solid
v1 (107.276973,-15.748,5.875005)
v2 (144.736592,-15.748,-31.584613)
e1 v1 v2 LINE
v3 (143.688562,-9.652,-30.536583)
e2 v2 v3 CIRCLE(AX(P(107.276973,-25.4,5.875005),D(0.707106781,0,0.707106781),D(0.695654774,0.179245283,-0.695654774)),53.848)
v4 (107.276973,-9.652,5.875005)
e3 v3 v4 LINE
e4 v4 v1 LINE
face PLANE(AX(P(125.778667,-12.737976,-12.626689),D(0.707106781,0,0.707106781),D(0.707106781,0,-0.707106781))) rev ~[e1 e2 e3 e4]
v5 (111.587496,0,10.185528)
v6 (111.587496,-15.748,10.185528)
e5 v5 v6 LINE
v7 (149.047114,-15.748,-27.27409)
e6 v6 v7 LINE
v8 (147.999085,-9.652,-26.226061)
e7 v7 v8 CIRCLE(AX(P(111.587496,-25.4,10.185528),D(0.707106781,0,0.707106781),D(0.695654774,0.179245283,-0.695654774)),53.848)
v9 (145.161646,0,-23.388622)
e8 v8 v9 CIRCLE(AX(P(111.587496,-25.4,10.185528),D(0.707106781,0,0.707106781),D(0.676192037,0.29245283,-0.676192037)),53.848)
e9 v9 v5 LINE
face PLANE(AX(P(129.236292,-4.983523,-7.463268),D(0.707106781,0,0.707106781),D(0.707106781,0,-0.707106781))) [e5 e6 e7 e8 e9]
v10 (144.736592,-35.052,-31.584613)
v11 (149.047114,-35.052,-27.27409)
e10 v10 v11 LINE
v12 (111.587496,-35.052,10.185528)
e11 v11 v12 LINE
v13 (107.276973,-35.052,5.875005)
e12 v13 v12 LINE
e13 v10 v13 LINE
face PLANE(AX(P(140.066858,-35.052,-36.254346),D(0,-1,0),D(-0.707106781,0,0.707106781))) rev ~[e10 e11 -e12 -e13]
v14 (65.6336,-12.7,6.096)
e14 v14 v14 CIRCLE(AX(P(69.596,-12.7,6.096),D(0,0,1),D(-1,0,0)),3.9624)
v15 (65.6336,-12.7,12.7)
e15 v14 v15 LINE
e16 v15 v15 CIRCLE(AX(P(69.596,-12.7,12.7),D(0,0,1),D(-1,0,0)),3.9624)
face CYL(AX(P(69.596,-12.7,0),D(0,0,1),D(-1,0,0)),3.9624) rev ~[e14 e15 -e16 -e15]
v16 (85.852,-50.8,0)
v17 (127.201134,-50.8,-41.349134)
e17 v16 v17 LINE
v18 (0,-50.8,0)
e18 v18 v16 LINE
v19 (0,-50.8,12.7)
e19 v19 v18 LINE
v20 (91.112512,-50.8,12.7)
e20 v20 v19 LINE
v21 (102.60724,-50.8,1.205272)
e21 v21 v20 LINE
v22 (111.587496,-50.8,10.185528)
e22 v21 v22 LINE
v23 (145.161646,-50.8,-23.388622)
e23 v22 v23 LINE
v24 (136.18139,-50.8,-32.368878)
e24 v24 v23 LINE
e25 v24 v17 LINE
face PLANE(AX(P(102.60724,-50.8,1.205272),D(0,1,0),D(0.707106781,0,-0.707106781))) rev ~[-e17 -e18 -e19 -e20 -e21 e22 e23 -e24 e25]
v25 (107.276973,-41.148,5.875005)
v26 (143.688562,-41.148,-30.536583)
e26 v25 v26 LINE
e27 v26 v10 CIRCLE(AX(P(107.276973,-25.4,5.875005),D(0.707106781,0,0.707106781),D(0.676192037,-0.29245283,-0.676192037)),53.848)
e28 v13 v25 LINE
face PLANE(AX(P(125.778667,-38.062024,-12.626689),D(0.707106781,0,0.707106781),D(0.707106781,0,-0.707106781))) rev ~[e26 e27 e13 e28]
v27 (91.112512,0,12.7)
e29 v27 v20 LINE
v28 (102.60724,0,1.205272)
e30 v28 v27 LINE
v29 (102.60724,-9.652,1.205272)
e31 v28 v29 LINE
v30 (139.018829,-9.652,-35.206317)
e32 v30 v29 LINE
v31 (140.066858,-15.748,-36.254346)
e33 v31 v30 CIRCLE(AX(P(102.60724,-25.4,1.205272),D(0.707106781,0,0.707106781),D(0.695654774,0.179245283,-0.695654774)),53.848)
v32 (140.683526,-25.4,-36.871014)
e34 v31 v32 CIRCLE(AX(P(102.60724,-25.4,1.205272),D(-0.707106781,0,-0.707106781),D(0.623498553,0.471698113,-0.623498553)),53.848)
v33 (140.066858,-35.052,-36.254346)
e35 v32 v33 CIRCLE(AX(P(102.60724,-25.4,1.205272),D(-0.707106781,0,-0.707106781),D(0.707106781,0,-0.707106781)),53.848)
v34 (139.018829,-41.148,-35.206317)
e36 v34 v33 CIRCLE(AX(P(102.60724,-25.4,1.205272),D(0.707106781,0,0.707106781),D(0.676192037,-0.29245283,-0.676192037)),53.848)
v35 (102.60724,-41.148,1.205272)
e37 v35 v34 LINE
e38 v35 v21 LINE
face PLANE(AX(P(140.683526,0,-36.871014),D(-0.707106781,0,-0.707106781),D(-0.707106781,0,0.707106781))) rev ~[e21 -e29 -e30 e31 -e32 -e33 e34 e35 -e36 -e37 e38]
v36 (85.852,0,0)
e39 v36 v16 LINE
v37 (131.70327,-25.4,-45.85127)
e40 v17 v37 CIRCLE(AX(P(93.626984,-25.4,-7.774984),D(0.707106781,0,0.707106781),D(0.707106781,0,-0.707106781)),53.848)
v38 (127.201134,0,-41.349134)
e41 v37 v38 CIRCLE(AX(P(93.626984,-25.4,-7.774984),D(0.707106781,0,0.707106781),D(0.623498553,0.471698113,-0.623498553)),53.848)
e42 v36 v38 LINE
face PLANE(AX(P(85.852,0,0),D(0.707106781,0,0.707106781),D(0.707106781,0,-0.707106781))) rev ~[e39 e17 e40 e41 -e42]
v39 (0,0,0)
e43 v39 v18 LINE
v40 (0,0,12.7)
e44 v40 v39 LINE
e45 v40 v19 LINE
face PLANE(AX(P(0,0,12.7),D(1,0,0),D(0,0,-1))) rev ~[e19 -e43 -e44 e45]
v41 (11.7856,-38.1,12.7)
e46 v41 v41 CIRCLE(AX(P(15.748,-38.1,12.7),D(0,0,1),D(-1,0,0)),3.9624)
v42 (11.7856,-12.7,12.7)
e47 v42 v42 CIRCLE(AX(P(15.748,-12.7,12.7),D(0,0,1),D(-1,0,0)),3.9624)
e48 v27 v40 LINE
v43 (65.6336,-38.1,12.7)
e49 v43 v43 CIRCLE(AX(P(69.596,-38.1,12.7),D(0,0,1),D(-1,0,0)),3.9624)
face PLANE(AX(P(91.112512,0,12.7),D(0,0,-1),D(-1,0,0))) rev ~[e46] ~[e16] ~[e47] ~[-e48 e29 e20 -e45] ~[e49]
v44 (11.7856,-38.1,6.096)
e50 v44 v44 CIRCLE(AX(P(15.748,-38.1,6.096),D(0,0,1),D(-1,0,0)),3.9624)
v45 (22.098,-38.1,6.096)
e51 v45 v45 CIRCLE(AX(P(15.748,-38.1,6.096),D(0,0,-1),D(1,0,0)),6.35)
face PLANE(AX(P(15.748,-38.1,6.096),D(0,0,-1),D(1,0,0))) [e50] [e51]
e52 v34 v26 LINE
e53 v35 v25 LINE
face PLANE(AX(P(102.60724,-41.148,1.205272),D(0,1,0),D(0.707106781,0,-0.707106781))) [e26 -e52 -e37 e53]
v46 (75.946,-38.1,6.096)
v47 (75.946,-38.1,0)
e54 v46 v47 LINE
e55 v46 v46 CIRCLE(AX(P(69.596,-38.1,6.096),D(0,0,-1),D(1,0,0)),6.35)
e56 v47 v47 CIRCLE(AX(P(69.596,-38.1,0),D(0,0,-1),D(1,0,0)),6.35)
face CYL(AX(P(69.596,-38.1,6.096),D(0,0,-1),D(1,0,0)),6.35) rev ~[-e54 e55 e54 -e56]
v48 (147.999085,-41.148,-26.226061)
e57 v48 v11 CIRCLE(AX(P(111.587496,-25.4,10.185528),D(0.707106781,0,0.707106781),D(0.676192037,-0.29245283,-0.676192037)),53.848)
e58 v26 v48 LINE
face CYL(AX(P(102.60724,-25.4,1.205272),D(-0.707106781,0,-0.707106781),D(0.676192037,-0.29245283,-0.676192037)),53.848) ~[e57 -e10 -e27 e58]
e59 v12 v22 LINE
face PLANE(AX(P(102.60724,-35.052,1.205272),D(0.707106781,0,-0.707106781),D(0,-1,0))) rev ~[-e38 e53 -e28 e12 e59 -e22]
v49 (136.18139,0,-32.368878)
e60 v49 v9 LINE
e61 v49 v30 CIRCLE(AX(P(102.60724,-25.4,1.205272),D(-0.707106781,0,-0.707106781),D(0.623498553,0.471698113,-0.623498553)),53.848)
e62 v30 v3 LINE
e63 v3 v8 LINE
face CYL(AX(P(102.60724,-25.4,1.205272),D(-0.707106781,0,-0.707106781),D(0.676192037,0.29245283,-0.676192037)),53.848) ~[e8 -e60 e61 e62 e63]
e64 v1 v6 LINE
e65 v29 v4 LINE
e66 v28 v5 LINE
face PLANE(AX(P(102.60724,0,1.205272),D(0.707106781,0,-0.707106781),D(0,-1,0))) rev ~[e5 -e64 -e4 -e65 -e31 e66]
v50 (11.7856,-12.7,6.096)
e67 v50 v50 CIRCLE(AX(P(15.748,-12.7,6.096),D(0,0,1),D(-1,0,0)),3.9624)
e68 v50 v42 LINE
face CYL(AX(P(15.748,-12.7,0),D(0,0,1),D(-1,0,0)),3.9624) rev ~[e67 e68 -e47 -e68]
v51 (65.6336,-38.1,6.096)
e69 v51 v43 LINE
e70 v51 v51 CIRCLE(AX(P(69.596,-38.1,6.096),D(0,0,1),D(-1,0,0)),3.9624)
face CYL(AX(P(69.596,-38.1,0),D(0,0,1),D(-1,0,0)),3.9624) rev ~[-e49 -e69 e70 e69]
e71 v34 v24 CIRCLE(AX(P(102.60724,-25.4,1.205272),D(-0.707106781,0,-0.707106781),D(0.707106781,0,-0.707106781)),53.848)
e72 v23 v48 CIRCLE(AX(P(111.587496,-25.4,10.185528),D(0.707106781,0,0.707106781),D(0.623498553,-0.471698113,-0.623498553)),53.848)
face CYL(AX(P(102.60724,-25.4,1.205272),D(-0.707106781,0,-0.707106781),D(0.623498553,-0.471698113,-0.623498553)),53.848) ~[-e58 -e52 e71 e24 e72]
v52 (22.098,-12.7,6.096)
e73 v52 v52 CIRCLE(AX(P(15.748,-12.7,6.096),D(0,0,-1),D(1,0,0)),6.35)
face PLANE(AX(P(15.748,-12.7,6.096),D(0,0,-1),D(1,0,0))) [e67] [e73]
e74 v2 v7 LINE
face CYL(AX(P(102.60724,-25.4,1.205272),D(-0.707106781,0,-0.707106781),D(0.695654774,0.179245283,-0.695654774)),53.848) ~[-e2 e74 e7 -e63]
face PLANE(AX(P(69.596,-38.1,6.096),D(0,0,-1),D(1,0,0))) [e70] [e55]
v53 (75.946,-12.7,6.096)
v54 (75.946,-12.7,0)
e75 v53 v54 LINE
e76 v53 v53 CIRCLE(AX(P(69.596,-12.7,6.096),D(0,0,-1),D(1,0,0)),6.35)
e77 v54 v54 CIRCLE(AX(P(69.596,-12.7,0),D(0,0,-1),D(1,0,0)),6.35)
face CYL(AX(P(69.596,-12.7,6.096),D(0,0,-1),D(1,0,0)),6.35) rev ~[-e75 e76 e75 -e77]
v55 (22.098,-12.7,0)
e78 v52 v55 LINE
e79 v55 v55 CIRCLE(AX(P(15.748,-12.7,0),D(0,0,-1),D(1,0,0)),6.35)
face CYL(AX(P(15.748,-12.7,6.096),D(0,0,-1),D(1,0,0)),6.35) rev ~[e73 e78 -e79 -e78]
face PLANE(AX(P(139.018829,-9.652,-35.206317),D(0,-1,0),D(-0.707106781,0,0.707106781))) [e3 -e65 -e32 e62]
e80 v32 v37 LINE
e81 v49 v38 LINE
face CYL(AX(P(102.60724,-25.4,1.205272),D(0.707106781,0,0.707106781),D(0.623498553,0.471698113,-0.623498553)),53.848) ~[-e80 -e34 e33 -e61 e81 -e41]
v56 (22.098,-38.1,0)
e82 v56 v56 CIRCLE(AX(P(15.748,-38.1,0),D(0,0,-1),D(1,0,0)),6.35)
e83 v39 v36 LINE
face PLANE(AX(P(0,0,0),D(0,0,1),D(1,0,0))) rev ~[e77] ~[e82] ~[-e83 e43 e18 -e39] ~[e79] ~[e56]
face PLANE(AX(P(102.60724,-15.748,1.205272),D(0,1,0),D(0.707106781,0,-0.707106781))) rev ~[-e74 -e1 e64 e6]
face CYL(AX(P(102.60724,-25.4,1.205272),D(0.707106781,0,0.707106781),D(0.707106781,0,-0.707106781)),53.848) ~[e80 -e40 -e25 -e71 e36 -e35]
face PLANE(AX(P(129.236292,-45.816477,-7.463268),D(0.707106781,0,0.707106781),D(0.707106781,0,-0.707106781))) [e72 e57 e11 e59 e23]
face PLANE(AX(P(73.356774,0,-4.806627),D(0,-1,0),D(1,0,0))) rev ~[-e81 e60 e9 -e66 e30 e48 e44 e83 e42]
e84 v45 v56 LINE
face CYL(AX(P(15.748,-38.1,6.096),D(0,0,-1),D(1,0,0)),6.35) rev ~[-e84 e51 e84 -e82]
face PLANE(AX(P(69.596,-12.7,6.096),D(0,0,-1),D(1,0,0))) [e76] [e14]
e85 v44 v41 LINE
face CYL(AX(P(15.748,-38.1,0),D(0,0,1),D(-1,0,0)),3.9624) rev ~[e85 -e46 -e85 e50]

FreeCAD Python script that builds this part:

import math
import FreeCAD as App
import Part
import Sketcher
Q = App.Units.Quantity


def add_polygon(sketch, points):
    """Adds a closed chain of lines whose ends are joined by coincident constraints."""
    first, n = sketch.GeometryCount, len(points)
    for a, b in zip(points, points[1:] + points[:1]):
        sketch.addGeometry(Part.LineSegment(App.Vector(*a, 0), App.Vector(*b, 0)), False)
    for i in range(n):
        sketch.addConstraint(Sketcher.Constraint("Coincident", first + i, 2, first + (i + 1) % n, 1))

doc = App.newDocument("Part")
body = doc.addObject("PartDesign::Body", "Body")

# Sketch on XZ plane
sketch1 = body.newObject("Sketcher::SketchObject", "Sketch")
sketch1.AttachmentSupport = (doc.getObject("XZ_Plane"), [""])
sketch1.MapMode = "FlatFace"
add_polygon(sketch1, [(0, 13), (0, 0), (86, 0), (132, -46), (141, -37), (91, 13)])  # lines 0-5
sketch1.addConstraint(Sketcher.Constraint("Vertical", 0))
sketch1.addConstraint(Sketcher.Constraint("Horizontal", 1))
sketch1.addConstraint(Sketcher.Constraint("Horizontal", 5))
sketch1.addConstraint(Sketcher.Constraint("Coincident", 0, 2, -1, 1))
sketch1.addConstraint(Sketcher.Constraint("Perpendicular", 2, 3))
sketch1.addConstraint(Sketcher.Constraint("Perpendicular", 3, 4))
sketch1.addConstraint(Sketcher.Constraint("DistanceY", 0, 2, 0, 1, Q("0.5 in")))
sketch1.addConstraint(Sketcher.Constraint("Angle", 2, Q("-45 deg")))
sketch1.addConstraint(Sketcher.Constraint("Distance", 3, Q("0.5 in")))
sketch1.addConstraint(Sketcher.Constraint("DistanceX", 1, 1, 1, 2, Q("3.38 in")))
sketch1.addConstraint(Sketcher.Constraint("Distance", 4, Q("2.76 in")))
pad1 = body.newObject("PartDesign::Pad", "Pad")
pad1.Profile = sketch1
pad1.Length = Q("2 in")

# Sketch on XY plane
sketch2 = body.newObject("Sketcher::SketchObject", "Sketch001")
sketch2.AttachmentSupport = (doc.getObject("XY_Plane"), [""])
sketch2.MapMode = "FlatFace"
sketch2.addGeometry(Part.Circle(App.Vector(15.7, -38.1, 0), App.Vector(0, 0, 1), 4), False)
sketch2.addGeometry(Part.Circle(App.Vector(69.6, -38.1, 0), App.Vector(0, 0, 1), 4), False)
sketch2.addGeometry(Part.Circle(App.Vector(69.6, -12.7, 0), App.Vector(0, 0, 1), 4), False)
sketch2.addGeometry(Part.Circle(App.Vector(15.7, -12.7, 0), App.Vector(0, 0, 1), 4), False)
sketch2.addConstraint(Sketcher.Constraint("Equal", 0, 1))
sketch2.addConstraint(Sketcher.Constraint("Equal", 1, 2))
sketch2.addConstraint(Sketcher.Constraint("Equal", 2, 3))
sketch2.addConstraint(Sketcher.Constraint("Horizontal", 0, 3, 1, 3))
sketch2.addConstraint(Sketcher.Constraint("Horizontal", 2, 3, 3, 3))
sketch2.addConstraint(Sketcher.Constraint("Vertical", 1, 3, 2, 3))
sketch2.addConstraint(Sketcher.Constraint("Vertical", 0, 3, 3, 3))
sketch2.addConstraint(Sketcher.Constraint("Diameter", 0, Q("0.312 in")))
sketch2.addConstraint(Sketcher.Constraint("DistanceY", 1, 3, 2, 3, Q("1 in")))
sketch2.addConstraint(Sketcher.Constraint("DistanceY", 0, 3, -1, 1, Q("1.5 in")))
sketch2.addConstraint(Sketcher.Constraint("DistanceX", -1, 1, 0, 3, Q("0.62 in")))
sketch2.addConstraint(Sketcher.Constraint("DistanceX", -1, 1, 1, 3, Q("2.74 in")))
doc.recompute()
hole = body.newObject("PartDesign::Hole", "Hole")
hole.Profile = sketch2
hole.ThreadType = "None"
hole.Diameter = Q("0.312 in")
hole.DepthType = "Dimension"
hole.Depth = Q("1.4 in")
hole.DrillPoint = "Angled"
hole.DrillPointAngle = 118
hole.HoleCutType = "Counterbore"
hole.HoleCutDiameter = Q("0.5 in")
hole.HoleCutDepth = Q("0.24 in")
hole.Reversed = True

# Sketch on an angled plane
sketch3 = body.newObject("Sketcher::SketchObject", "Sketch002")
sketch3.Placement = App.Placement(App.Vector(51.906256, 0, 51.906256), App.Rotation(App.Vector(0.707106781, 0, -0.707106781), App.Vector(0, 0.999999999, 0), App.Vector(0.707106781, 0, 0.707106781), "ZXY"))
sketch3.addGeometry(Part.ArcOfCircle(Part.Circle(App.Vector(72, -25, 0), App.Vector(0, 0, 1), 54), math.radians(-28), math.radians(0)), False)
sketch3.addGeometry(Part.LineSegment(App.Vector(119, -51, 0), App.Vector(126, -51, 0)), False)
sketch3.addGeometry(Part.LineSegment(App.Vector(126, -51, 0), App.Vector(126, -25, 0)), False)
sketch3.addGeometry(Part.ArcOfCircle(Part.Circle(App.Vector(72, -25, 0), App.Vector(0, 0, 1), 54), math.radians(0), math.radians(28)), False)
sketch3.addGeometry(Part.LineSegment(App.Vector(126, -25, 0), App.Vector(126, 0, 0)), False)
sketch3.addGeometry(Part.LineSegment(App.Vector(126, 0, 0), App.Vector(119, 0, 0)), False)
sketch3.addConstraint(Sketcher.Constraint("Coincident", 0, 1, 1, 1))
sketch3.addConstraint(Sketcher.Constraint("Coincident", 1, 2, 2, 1))
sketch3.addConstraint(Sketcher.Constraint("Tangent", 2, 2, 0, 2))
sketch3.addConstraint(Sketcher.Constraint("Tangent", 3, 1, 4, 1))
sketch3.addConstraint(Sketcher.Constraint("Coincident", 4, 2, 5, 1))
sketch3.addConstraint(Sketcher.Constraint("Coincident", 5, 2, 3, 2))
sketch3.addConstraint(Sketcher.Constraint("Horizontal", 1))
sketch3.addConstraint(Sketcher.Constraint("Vertical", 2))
sketch3.addConstraint(Sketcher.Constraint("Vertical", 4))
sketch3.addConstraint(Sketcher.Constraint("Horizontal", 5))
sketch3.addConstraint(Sketcher.Constraint("Coincident", 3, 3, 0, 3))
sketch3.addConstraint(Sketcher.Constraint("Equal", 0, 3))
sketch3.addConstraint(Sketcher.Constraint("PointOnObject", 4, 2, -1))
sketch3.addConstraint(Sketcher.Constraint("Vertical", 0, 1, 5, 2))
sketch3.addConstraint(Sketcher.Constraint("DistanceY", 2, 1, 2, 2, Q("1 in")))
sketch3.addConstraint(Sketcher.Constraint("Radius", 0, Q("2.12 in")))
sketch3.addConstraint(Sketcher.Constraint("DistanceX", -1, 1, 0, 3, Q("71.702019 mm")))
pocket1 = body.newObject("PartDesign::Pocket", "Pocket")
pocket1.Profile = sketch3
pocket1.Type = "ThroughAll"

# Sketch on an angled plane
sketch4 = body.newObject("Sketcher::SketchObject", "Sketch003")
sketch4.Placement = App.Placement(App.Vector(51.906256, 0, 51.906256), App.Rotation(App.Vector(0.707106781, 0, -0.707106781), App.Vector(0, 0.999999999, 0), App.Vector(0.707106781, 0, 0.707106781), "ZXY"))
sketch4.addGeometry(Part.LineSegment(App.Vector(72, -51, 0), App.Vector(119, -51, 0)), False)
sketch4.addGeometry(Part.ArcOfCircle(Part.Circle(App.Vector(72, -25, 0), App.Vector(0, 0, 1), 54), math.radians(-28.14), math.radians(-17)), False)
sketch4.addGeometry(Part.ArcOfCircle(Part.Circle(App.Vector(72, -25, 0), App.Vector(0, 0, 1), 54), math.radians(-17), math.radians(-10.33)), False)
sketch4.addGeometry(Part.LineSegment(App.Vector(125, -35, 0), App.Vector(72, -35, 0)), False)
sketch4.addGeometry(Part.LineSegment(App.Vector(72, -35, 0), App.Vector(72, -51, 0)), False)
sketch4.addGeometry(Part.LineSegment(App.Vector(119, 0, 0), App.Vector(72, 0, 0)), False)
sketch4.addGeometry(Part.LineSegment(App.Vector(72, 0, 0), App.Vector(72, -16, 0)), False)
sketch4.addGeometry(Part.LineSegment(App.Vector(72, -16, 0), App.Vector(125, -16, 0)), False)
sketch4.addGeometry(Part.ArcOfCircle(Part.Circle(App.Vector(72, -25, 0), App.Vector(0, 0, 1), 54), math.radians(10.33), math.radians(17)), False)
sketch4.addGeometry(Part.ArcOfCircle(Part.Circle(App.Vector(72, -25, 0), App.Vector(0, 0, 1), 54), math.radians(17), math.radians(28.14)), False)
sketch4.addConstraint(Sketcher.Constraint("Coincident", 0, 2, 1, 1))
sketch4.addConstraint(Sketcher.Constraint("Tangent", 1, 2, 2, 1))
sketch4.addConstraint(Sketcher.Constraint("Coincident", 2, 2, 3, 1))
sketch4.addConstraint(Sketcher.Constraint("Coincident", 3, 2, 4, 1))
sketch4.addConstraint(Sketcher.Constraint("Coincident", 4, 2, 0, 1))
sketch4.addConstraint(Sketcher.Constraint("Coincident", 5, 2, 6, 1))
sketch4.addConstraint(Sketcher.Constraint("Coincident", 6, 2, 7, 1))
sketch4.addConstraint(Sketcher.Constraint("Coincident", 7, 2, 8, 1))
sketch4.addConstraint(Sketcher.Constraint("Tangent", 8, 2, 9, 1))
sketch4.addConstraint(Sketcher.Constraint("Coincident", 9, 2, 5, 1))
sketch4.addConstraint(Sketcher.Constraint("Horizontal", 0))
sketch4.addConstraint(Sketcher.Constraint("Horizontal", 3))
sketch4.addConstraint(Sketcher.Constraint("Vertical", 4))
sketch4.addConstraint(Sketcher.Constraint("Horizontal", 5))
sketch4.addConstraint(Sketcher.Constraint("Vertical", 6))
sketch4.addConstraint(Sketcher.Constraint("Horizontal", 7))
sketch4.addConstraint(Sketcher.Constraint("Coincident", 8, 3, 1, 3))
sketch4.addConstraint(Sketcher.Constraint("Equal", 1, 2))
sketch4.addConstraint(Sketcher.Constraint("Equal", 2, 8))
sketch4.addConstraint(Sketcher.Constraint("Equal", 8, 9))
sketch4.addConstraint(Sketcher.Constraint("PointOnObject", 5, 2, -1))
sketch4.addConstraint(Sketcher.Constraint("Vertical", 9, 3, 3, 2))
sketch4.addConstraint(Sketcher.Constraint("Vertical", 4, 2, 5, 2))
sketch4.addConstraint(Sketcher.Constraint("Vertical", 2, 2, 7, 2))
sketch4.addConstraint(Sketcher.Constraint("Vertical", 1, 2, 8, 2))
sketch4.addConstraint(Sketcher.Constraint("Vertical", 0, 2, 9, 2))
sketch4.addConstraint(Sketcher.Constraint("Radius", 1, Q("2.12 in")))
sketch4.addConstraint(Sketcher.Constraint("DistanceY", 1, 3, -1, 1, Q("1 in")))
sketch4.addConstraint(Sketcher.Constraint("DistanceY", 1, 2, 7, 2, Q("1 in")))
sketch4.addConstraint(Sketcher.Constraint("DistanceY", 4, 2, 4, 1, Q("0.62 in")))
sketch4.addConstraint(Sketcher.Constraint("DistanceX", -1, 1, 1, 3, Q("71.702019 mm")))
pad2 = body.newObject("PartDesign::Pad", "Pad001")
pad2.Profile = sketch4
pad2.Length = Q("0.5 in")

# Sketch on an angled plane
sketch5 = body.newObject("Sketcher::SketchObject", "Sketch004")
sketch5.Placement = App.Placement(App.Vector(51.906256, 0, 51.906256), App.Rotation(App.Vector(0.707106781, 0, -0.707106781), App.Vector(0, 0.999999999, 0), App.Vector(0.707106781, 0, 0.707106781), "ZXY"))
sketch5.addGeometry(Part.LineSegment(App.Vector(72, -35, 0), App.Vector(72, -41, 0)), False)
sketch5.addGeometry(Part.LineSegment(App.Vector(72, -41, 0), App.Vector(123, -41, 0)), False)
sketch5.addGeometry(Part.ArcOfCircle(Part.Circle(App.Vector(72, -25, 0), App.Vector(0, 0, 1), 54), math.radians(-17), math.radians(-10.33)), False)
sketch5.addGeometry(Part.LineSegment(App.Vector(125, -35, 0), App.Vector(72, -35, 0)), False)
sketch5.addGeometry(Part.LineSegment(App.Vector(72, -10, 0), App.Vector(72, -16, 0)), False)
sketch5.addGeometry(Part.LineSegment(App.Vector(72, -16, 0), App.Vector(125, -16, 0)), False)
sketch5.addGeometry(Part.ArcOfCircle(Part.Circle(App.Vector(72, -25, 0), App.Vector(0, 0, 1), 54), math.radians(10.33), math.radians(17)), False)
sketch5.addGeometry(Part.LineSegment(App.Vector(123, -10, 0), App.Vector(72, -10, 0)), False)
sketch5.addConstraint(Sketcher.Constraint("Coincident", 0, 2, 1, 1))
sketch5.addConstraint(Sketcher.Constraint("Coincident", 1, 2, 2, 1))
sketch5.addConstraint(Sketcher.Constraint("Coincident", 2, 2, 3, 1))
sketch5.addConstraint(Sketcher.Constraint("Coincident", 3, 2, 0, 1))
sketch5.addConstraint(Sketcher.Constraint("Coincident", 4, 2, 5, 1))
sketch5.addConstraint(Sketcher.Constraint("Coincident", 5, 2, 6, 1))
sketch5.addConstraint(Sketcher.Constraint("Coincident", 6, 2, 7, 1))
sketch5.addConstraint(Sketcher.Constraint("Coincident", 7, 2, 4, 1))
sketch5.addConstraint(Sketcher.Constraint("Vertical", 0))
sketch5.addConstraint(Sketcher.Constraint("Horizontal", 1))
sketch5.addConstraint(Sketcher.Constraint("Horizontal", 3))
sketch5.addConstraint(Sketcher.Constraint("Vertical", 4))
sketch5.addConstraint(Sketcher.Constraint("Horizontal", 5))
sketch5.addConstraint(Sketcher.Constraint("Horizontal", 7))
sketch5.addConstraint(Sketcher.Constraint("Coincident", 6, 3, 2, 3))
sketch5.addConstraint(Sketcher.Constraint("Equal", 2, 6))
sketch5.addConstraint(Sketcher.Constraint("Vertical", 6, 3, 0, 2))
sketch5.addConstraint(Sketcher.Constraint("Vertical", 3, 2, 4, 2))
sketch5.addConstraint(Sketcher.Constraint("Vertical", 2, 2, 5, 2))
sketch5.addConstraint(Sketcher.Constraint("Vertical", 1, 2, 6, 2))
sketch5.addConstraint(Sketcher.Constraint("Radius", 2, Q("2.12 in")))
sketch5.addConstraint(Sketcher.Constraint("DistanceY", 2, 3, -1, 1, Q("1 in")))
sketch5.addConstraint(Sketcher.Constraint("DistanceY", 0, 2, 4, 2, Q("1 in")))
sketch5.addConstraint(Sketcher.Constraint("DistanceY", 0, 2, 0, 1, Q("0.24 in")))
sketch5.addConstraint(Sketcher.Constraint("DistanceX", -1, 1, 2, 3, Q("71.702019 mm")))
pocket2 = body.newObject("PartDesign::Pocket", "Pocket001")
pocket2.Profile = sketch5
pocket2.Length = Q("0.26 in")
pocket2.Reversed = True

doc.recompute()
